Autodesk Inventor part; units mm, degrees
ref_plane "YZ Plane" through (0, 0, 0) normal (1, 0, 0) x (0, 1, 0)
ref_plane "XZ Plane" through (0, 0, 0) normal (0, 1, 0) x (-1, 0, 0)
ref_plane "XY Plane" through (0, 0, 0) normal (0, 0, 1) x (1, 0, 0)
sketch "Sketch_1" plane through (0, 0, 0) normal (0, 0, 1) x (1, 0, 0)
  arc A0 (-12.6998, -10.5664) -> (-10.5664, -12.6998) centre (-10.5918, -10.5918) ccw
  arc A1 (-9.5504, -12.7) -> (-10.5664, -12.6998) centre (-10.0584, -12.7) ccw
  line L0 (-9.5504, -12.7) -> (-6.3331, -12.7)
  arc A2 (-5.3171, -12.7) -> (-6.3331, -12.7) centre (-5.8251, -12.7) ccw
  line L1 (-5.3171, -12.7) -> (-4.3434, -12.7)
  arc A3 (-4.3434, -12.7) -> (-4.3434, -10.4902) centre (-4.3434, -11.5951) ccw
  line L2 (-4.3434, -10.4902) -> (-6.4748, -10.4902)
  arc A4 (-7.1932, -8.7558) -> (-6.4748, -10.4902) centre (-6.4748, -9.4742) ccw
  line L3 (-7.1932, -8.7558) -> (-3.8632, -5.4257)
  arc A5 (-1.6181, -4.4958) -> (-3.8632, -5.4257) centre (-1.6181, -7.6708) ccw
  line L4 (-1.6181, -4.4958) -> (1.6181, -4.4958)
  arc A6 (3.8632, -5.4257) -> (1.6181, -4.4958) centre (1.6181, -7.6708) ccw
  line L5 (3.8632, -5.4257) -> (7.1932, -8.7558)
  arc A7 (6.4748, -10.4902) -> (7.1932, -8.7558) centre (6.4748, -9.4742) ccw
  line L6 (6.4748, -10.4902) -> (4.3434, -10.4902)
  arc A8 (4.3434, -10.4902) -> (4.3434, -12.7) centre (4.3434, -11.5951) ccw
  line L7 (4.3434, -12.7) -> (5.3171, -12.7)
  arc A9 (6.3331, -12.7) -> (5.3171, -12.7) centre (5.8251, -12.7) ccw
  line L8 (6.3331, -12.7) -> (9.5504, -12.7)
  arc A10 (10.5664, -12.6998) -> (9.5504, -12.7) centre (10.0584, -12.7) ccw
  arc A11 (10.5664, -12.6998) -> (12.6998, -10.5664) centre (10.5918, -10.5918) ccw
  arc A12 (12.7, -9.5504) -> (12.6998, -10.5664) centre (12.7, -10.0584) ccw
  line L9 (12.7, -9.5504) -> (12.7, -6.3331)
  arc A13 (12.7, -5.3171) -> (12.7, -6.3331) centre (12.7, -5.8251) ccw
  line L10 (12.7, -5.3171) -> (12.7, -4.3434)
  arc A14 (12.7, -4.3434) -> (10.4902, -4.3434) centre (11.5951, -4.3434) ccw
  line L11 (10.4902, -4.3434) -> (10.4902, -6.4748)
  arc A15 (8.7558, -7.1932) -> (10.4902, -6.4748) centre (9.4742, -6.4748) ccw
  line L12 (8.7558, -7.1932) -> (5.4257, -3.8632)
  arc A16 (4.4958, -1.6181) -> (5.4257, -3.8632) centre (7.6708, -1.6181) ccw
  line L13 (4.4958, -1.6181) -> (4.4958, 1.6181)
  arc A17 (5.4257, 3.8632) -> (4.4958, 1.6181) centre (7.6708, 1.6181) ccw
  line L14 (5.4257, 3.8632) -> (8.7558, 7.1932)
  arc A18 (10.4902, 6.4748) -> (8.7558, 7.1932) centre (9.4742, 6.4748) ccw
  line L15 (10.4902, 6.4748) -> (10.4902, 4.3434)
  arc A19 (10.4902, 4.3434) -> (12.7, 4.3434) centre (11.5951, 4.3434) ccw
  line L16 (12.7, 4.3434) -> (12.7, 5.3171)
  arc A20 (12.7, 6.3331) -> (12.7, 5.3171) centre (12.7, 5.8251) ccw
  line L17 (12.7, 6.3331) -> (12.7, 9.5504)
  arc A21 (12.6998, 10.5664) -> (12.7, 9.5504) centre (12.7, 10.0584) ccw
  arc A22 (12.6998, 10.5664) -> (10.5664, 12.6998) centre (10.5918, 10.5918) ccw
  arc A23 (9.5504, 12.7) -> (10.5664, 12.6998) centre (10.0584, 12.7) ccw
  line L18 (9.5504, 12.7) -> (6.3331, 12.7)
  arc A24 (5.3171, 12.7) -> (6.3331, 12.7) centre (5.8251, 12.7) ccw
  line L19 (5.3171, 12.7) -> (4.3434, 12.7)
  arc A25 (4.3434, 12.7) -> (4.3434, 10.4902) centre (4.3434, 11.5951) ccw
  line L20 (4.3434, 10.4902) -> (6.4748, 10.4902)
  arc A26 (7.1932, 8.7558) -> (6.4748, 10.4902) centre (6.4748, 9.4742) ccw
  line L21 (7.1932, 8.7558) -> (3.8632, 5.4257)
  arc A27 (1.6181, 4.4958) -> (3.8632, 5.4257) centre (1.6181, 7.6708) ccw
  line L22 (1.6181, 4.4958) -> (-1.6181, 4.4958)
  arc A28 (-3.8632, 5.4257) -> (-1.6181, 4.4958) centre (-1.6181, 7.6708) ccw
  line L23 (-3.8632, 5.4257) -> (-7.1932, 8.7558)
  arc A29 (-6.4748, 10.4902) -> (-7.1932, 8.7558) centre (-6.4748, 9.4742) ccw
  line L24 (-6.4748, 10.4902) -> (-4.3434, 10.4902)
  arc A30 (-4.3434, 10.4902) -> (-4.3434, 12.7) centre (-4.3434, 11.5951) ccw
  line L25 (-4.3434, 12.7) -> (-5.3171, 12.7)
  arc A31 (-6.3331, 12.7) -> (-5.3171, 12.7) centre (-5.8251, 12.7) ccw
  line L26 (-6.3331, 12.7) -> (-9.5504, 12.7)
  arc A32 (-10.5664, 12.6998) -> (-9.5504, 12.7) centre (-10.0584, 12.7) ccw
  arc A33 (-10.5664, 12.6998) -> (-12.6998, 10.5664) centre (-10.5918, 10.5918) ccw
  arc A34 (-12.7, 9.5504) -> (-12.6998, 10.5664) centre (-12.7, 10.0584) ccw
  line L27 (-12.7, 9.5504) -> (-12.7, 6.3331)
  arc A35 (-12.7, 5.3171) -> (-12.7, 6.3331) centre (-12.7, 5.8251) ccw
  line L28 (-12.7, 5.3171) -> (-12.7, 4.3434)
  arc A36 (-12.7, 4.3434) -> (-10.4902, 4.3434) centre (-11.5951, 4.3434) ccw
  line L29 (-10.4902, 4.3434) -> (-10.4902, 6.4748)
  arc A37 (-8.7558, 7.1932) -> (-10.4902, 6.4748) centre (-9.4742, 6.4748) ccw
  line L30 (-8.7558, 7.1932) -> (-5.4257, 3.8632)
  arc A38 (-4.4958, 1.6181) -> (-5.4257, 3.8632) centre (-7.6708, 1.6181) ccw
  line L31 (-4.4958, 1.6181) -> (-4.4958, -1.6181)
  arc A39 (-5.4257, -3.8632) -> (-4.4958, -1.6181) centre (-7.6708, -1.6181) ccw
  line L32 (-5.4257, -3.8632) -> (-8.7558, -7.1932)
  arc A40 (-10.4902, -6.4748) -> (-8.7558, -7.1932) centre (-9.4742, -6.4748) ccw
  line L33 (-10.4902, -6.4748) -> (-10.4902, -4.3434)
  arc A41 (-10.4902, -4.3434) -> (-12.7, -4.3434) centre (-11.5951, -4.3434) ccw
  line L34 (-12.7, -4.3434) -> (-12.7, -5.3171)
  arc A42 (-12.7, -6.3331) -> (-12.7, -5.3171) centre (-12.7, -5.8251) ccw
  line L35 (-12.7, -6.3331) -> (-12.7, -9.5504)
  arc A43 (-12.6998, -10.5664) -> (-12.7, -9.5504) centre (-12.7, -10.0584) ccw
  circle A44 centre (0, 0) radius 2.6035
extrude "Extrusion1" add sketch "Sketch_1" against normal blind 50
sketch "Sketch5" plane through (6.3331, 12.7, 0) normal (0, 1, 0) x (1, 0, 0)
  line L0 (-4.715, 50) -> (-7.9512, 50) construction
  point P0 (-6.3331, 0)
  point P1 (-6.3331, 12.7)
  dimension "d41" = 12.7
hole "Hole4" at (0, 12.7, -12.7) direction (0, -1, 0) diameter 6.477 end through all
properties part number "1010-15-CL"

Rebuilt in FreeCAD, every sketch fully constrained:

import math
import FreeCAD as App
import Part
import Sketcher

V = App.Vector
Q = App.Units.Quantity

doc = App.newDocument("Part")
params = doc.addObject("Spreadsheet::Sheet", "Params")
for row, (alias, value) in enumerate([
    ("sketch1_radius", "0.02 in"),
    ("sketch1_radius2", "0.04 in"),
    ("sketch1_diameter", "0.205 in"),
    ("sketch1_radius3", "0.083 in"),
    ("sketch1_radius4", "0.125 in"),
    ("pad1_length", "1.9685039 in"),
    ("sketch2_diameter", "0.255 in"),
    ("hole_diameter", "0.255 in"),
], start=1):
    params.set(f"A{row}", alias)
    params.set(f"B{row}", "=" + value)
    params.setAlias(f"B{row}", alias)

body = doc.addObject("PartDesign::Body", "Body")

# Sketch on XY plane
sketch1 = body.newObject("Sketcher::SketchObject", "Sketch")
sketch1.AttachmentSupport = (doc.getObject("XY_Plane"), [""])
sketch1.MapMode = "FlatFace"
sketch1.addGeometry(Part.ArcOfCircle(Part.Circle(V(-12.7, -10.1, 0), V(0, 0, 1), 0.5), math.radians(-90), math.radians(90)), False)
sketch1.addGeometry(Part.ArcOfCircle(Part.Circle(V(-10.6, -10.6, 0), V(0, 0, 1), 2.1), math.radians(179), math.radians(271)), False)
sketch1.addGeometry(Part.ArcOfCircle(Part.Circle(V(-10.1, -12.7, 0), V(0, 0, 1), 0.5), math.radians(0), math.radians(180)), False)
sketch1.addGeometry(Part.LineSegment(V(-9.6, -12.7, 0), V(-6.3, -12.7, 0)), False)
sketch1.addGeometry(Part.ArcOfCircle(Part.Circle(V(-5.8, -12.7, 0), V(0, 0, 1), 0.5), math.radians(0), math.radians(180)), False)
sketch1.addGeometry(Part.LineSegment(V(-5.3, -12.7, 0), V(-4.3, -12.7, 0)), False)
sketch1.addGeometry(Part.ArcOfCircle(Part.Circle(V(-4.3, -11.6, 0), V(0, 0, 1), 1.1), math.radians(-90), math.radians(90)), False)
sketch1.addGeometry(Part.LineSegment(V(-4.3, -10.5, 0), V(-6.5, -10.5, 0)), False)
sketch1.addGeometry(Part.ArcOfCircle(Part.Circle(V(-6.5, -9.5, 0), V(0, 0, 1), 1), math.radians(135), math.radians(270)), False)
sketch1.addGeometry(Part.LineSegment(V(-7.2, -8.8, 0), V(-3.9, -5.4, 0)), False)
sketch1.addGeometry(Part.ArcOfCircle(Part.Circle(V(-1.6, -7.7, 0), V(0, 0, 1), 3.2), math.radians(90), math.radians(135)), False)
sketch1.addGeometry(Part.LineSegment(V(-1.6, -4.5, 0), V(1.6, -4.5, 0)), False)
sketch1.addGeometry(Part.ArcOfCircle(Part.Circle(V(1.6, -7.7, 0), V(0, 0, 1), 3.2), math.radians(45), math.radians(90)), False)
sketch1.addGeometry(Part.LineSegment(V(3.9, -5.4, 0), V(7.2, -8.8, 0)), False)
sketch1.addGeometry(Part.ArcOfCircle(Part.Circle(V(6.5, -9.5, 0), V(0, 0, 1), 1), math.radians(-90), math.radians(45)), False)
sketch1.addGeometry(Part.LineSegment(V(6.5, -10.5, 0), V(4.3, -10.5, 0)), False)
sketch1.addGeometry(Part.ArcOfCircle(Part.Circle(V(4.3, -11.6, 0), V(0, 0, 1), 1.1), math.radians(90), math.radians(270)), False)
sketch1.addGeometry(Part.LineSegment(V(4.3, -12.7, 0), V(5.3, -12.7, 0)), False)
sketch1.addGeometry(Part.ArcOfCircle(Part.Circle(V(5.8, -12.7, 0), V(0, 0, 1), 0.5), math.radians(0), math.radians(180)), False)
sketch1.addGeometry(Part.LineSegment(V(6.3, -12.7, 0), V(9.6, -12.7, 0)), False)
sketch1.addGeometry(Part.ArcOfCircle(Part.Circle(V(10.1, -12.7, 0), V(0, 0, 1), 0.5), math.radians(0), math.radians(180)), False)
sketch1.addGeometry(Part.ArcOfCircle(Part.Circle(V(10.6, -10.6, 0), V(0, 0, 1), 2.1), math.radians(-91), math.radians(1)), False)
sketch1.addGeometry(Part.ArcOfCircle(Part.Circle(V(12.7, -10.1, 0), V(0, 0, 1), 0.5), math.radians(90), math.radians(270)), False)
sketch1.addGeometry(Part.LineSegment(V(12.7, -9.6, 0), V(12.7, -6.3, 0)), False)
sketch1.addGeometry(Part.ArcOfCircle(Part.Circle(V(12.7, -5.8, 0), V(0, 0, 1), 0.5), math.radians(90), math.radians(270)), False)
sketch1.addGeometry(Part.LineSegment(V(12.7, -5.3, 0), V(12.7, -4.3, 0)), False)
sketch1.addGeometry(Part.ArcOfCircle(Part.Circle(V(11.6, -4.3, 0), V(0, 0, 1), 1.1), math.radians(0), math.radians(180)), False)
sketch1.addGeometry(Part.LineSegment(V(10.5, -4.3, 0), V(10.5, -6.5, 0)), False)
sketch1.addGeometry(Part.ArcOfCircle(Part.Circle(V(9.5, -6.5, 0), V(0, 0, 1), 1), math.radians(-135), math.radians(0)), False)
sketch1.addGeometry(Part.LineSegment(V(8.8, -7.2, 0), V(5.4, -3.9, 0)), False)
sketch1.addGeometry(Part.ArcOfCircle(Part.Circle(V(7.7, -1.6, 0), V(0, 0, 1), 3.2), math.radians(180), math.radians(225)), False)
sketch1.addGeometry(Part.LineSegment(V(4.5, -1.6, 0), V(4.5, 1.6, 0)), False)
sketch1.addGeometry(Part.ArcOfCircle(Part.Circle(V(7.7, 1.6, 0), V(0, 0, 1), 3.2), math.radians(135), math.radians(180)), False)
sketch1.addGeometry(Part.LineSegment(V(5.4, 3.9, 0), V(8.8, 7.2, 0)), False)
sketch1.addGeometry(Part.ArcOfCircle(Part.Circle(V(9.5, 6.5, 0), V(0, 0, 1), 1), math.radians(0), math.radians(135)), False)
sketch1.addGeometry(Part.LineSegment(V(10.5, 6.5, 0), V(10.5, 4.3, 0)), False)
sketch1.addGeometry(Part.ArcOfCircle(Part.Circle(V(11.6, 4.3, 0), V(0, 0, 1), 1.1), math.radians(180), math.radians(360)), False)
sketch1.addGeometry(Part.LineSegment(V(12.7, 4.3, 0), V(12.7, 5.3, 0)), False)
sketch1.addGeometry(Part.ArcOfCircle(Part.Circle(V(12.7, 5.8, 0), V(0, 0, 1), 0.5), math.radians(90), math.radians(270)), False)
sketch1.addGeometry(Part.LineSegment(V(12.7, 6.3, 0), V(12.7, 9.6, 0)), False)
sketch1.addGeometry(Part.ArcOfCircle(Part.Circle(V(12.7, 10.1, 0), V(0, 0, 1), 0.5), math.radians(90), math.radians(270)), False)
sketch1.addGeometry(Part.ArcOfCircle(Part.Circle(V(10.6, 10.6, 0), V(0, 0, 1), 2.1), math.radians(-1), math.radians(91)), False)
sketch1.addGeometry(Part.ArcOfCircle(Part.Circle(V(10.1, 12.7, 0), V(0, 0, 1), 0.5), math.radians(180), math.radians(360)), False)
sketch1.addGeometry(Part.LineSegment(V(9.6, 12.7, 0), V(6.3, 12.7, 0)), False)
sketch1.addGeometry(Part.ArcOfCircle(Part.Circle(V(5.8, 12.7, 0), V(0, 0, 1), 0.5), math.radians(180), math.radians(360)), False)
sketch1.addGeometry(Part.LineSegment(V(5.3, 12.7, 0), V(4.3, 12.7, 0)), False)
sketch1.addGeometry(Part.ArcOfCircle(Part.Circle(V(4.3, 11.6, 0), V(0, 0, 1), 1.1), math.radians(90), math.radians(270)), False)
sketch1.addGeometry(Part.LineSegment(V(4.3, 10.5, 0), V(6.5, 10.5, 0)), False)
sketch1.addGeometry(Part.ArcOfCircle(Part.Circle(V(6.5, 9.5, 0), V(0, 0, 1), 1), math.radians(-45), math.radians(90)), False)
sketch1.addGeometry(Part.LineSegment(V(7.2, 8.8, 0), V(3.9, 5.4, 0)), False)
sketch1.addGeometry(Part.ArcOfCircle(Part.Circle(V(1.6, 7.7, 0), V(0, 0, 1), 3.2), math.radians(-90), math.radians(-45)), False)
sketch1.addGeometry(Part.LineSegment(V(1.6, 4.5, 0), V(-1.6, 4.5, 0)), False)
sketch1.addGeometry(Part.ArcOfCircle(Part.Circle(V(-1.6, 7.7, 0), V(0, 0, 1), 3.2), math.radians(-135), math.radians(-90)), False)
sketch1.addGeometry(Part.LineSegment(V(-3.9, 5.4, 0), V(-7.2, 8.8, 0)), False)
sketch1.addGeometry(Part.ArcOfCircle(Part.Circle(V(-6.5, 9.5, 0), V(0, 0, 1), 1), math.radians(90), math.radians(225)), False)
sketch1.addGeometry(Part.LineSegment(V(-6.5, 10.5, 0), V(-4.3, 10.5, 0)), False)
sketch1.addGeometry(Part.ArcOfCircle(Part.Circle(V(-4.3, 11.6, 0), V(0, 0, 1), 1.1), math.radians(-90), math.radians(90)), False)
sketch1.addGeometry(Part.LineSegment(V(-4.3, 12.7, 0), V(-5.3, 12.7, 0)), False)
sketch1.addGeometry(Part.ArcOfCircle(Part.Circle(V(-5.8, 12.7, 0), V(0, 0, 1), 0.5), math.radians(180), math.radians(360)), False)
sketch1.addGeometry(Part.LineSegment(V(-6.3, 12.7, 0), V(-9.6, 12.7, 0)), False)
sketch1.addGeometry(Part.ArcOfCircle(Part.Circle(V(-10.1, 12.7, 0), V(0, 0, 1), 0.5), math.radians(-180), math.radians(0)), False)
sketch1.addGeometry(Part.ArcOfCircle(Part.Circle(V(-10.6, 10.6, 0), V(0, 0, 1), 2.1), math.radians(89), math.radians(181)), False)
sketch1.addGeometry(Part.ArcOfCircle(Part.Circle(V(-12.7, 10.1, 0), V(0, 0, 1), 0.5), math.radians(-90), math.radians(90)), False)
sketch1.addGeometry(Part.LineSegment(V(-12.7, 9.6, 0), V(-12.7, 6.3, 0)), False)
sketch1.addGeometry(Part.ArcOfCircle(Part.Circle(V(-12.7, 5.8, 0), V(0, 0, 1), 0.5), math.radians(-90), math.radians(90)), False)
sketch1.addGeometry(Part.LineSegment(V(-12.7, 5.3, 0), V(-12.7, 4.3, 0)), False)
sketch1.addGeometry(Part.ArcOfCircle(Part.Circle(V(-11.6, 4.3, 0), V(0, 0, 1), 1.1), math.radians(180), math.radians(360)), False)
sketch1.addGeometry(Part.LineSegment(V(-10.5, 4.3, 0), V(-10.5, 6.5, 0)), False)
sketch1.addGeometry(Part.ArcOfCircle(Part.Circle(V(-9.5, 6.5, 0), V(0, 0, 1), 1), math.radians(45), math.radians(180)), False)
sketch1.addGeometry(Part.LineSegment(V(-8.8, 7.2, 0), V(-5.4, 3.9, 0)), False)
sketch1.addGeometry(Part.ArcOfCircle(Part.Circle(V(-7.7, 1.6, 0), V(0, 0, 1), 3.2), math.radians(0), math.radians(45)), False)
sketch1.addGeometry(Part.LineSegment(V(-4.5, 1.6, 0), V(-4.5, -1.6, 0)), False)
sketch1.addGeometry(Part.ArcOfCircle(Part.Circle(V(-7.7, -1.6, 0), V(0, 0, 1), 3.2), math.radians(-45), math.radians(0)), False)
sketch1.addGeometry(Part.LineSegment(V(-5.4, -3.9, 0), V(-8.8, -7.2, 0)), False)
sketch1.addGeometry(Part.ArcOfCircle(Part.Circle(V(-9.5, -6.5, 0), V(0, 0, 1), 1), math.radians(180), math.radians(315)), False)
sketch1.addGeometry(Part.LineSegment(V(-10.5, -6.5, 0), V(-10.5, -4.3, 0)), False)
sketch1.addGeometry(Part.ArcOfCircle(Part.Circle(V(-11.6, -4.3, 0), V(0, 0, 1), 1.1), math.radians(0), math.radians(180)), False)
sketch1.addGeometry(Part.LineSegment(V(-12.7, -4.3, 0), V(-12.7, -5.3, 0)), False)
sketch1.addGeometry(Part.ArcOfCircle(Part.Circle(V(-12.7, -5.8, 0), V(0, 0, 1), 0.5), math.radians(-90), math.radians(90)), False)
sketch1.addGeometry(Part.LineSegment(V(-12.7, -6.3, 0), V(-12.7, -9.6, 0)), False)
sketch1.addGeometry(Part.Circle(V(0, 0, 0), V(0, 0, 1), 2.6), False)
sketch1.addConstraint(Sketcher.Constraint("Coincident", 0, 1, 1, 1))
sketch1.addConstraint(Sketcher.Constraint("Coincident", 1, 2, 2, 2))
sketch1.addConstraint(Sketcher.Constraint("Coincident", 2, 1, 3, 1))
sketch1.addConstraint(Sketcher.Constraint("Coincident", 3, 2, 4, 2))
sketch1.addConstraint(Sketcher.Constraint("Coincident", 4, 1, 5, 1))
sketch1.addConstraint(Sketcher.Constraint("Tangent", 5, 2, 6, 1))
sketch1.addConstraint(Sketcher.Constraint("Tangent", 6, 2, 7, 1))
sketch1.addConstraint(Sketcher.Constraint("Tangent", 7, 2, 8, 2))
sketch1.addConstraint(Sketcher.Constraint("Tangent", 8, 1, 9, 1))
sketch1.addConstraint(Sketcher.Constraint("Tangent", 9, 2, 10, 2))
sketch1.addConstraint(Sketcher.Constraint("Tangent", 10, 1, 11, 1))
sketch1.addConstraint(Sketcher.Constraint("Tangent", 11, 2, 12, 2))
sketch1.addConstraint(Sketcher.Constraint("Tangent", 12, 1, 13, 1))
sketch1.addConstraint(Sketcher.Constraint("Tangent", 13, 2, 14, 2))
sketch1.addConstraint(Sketcher.Constraint("Tangent", 14, 1, 15, 1))
sketch1.addConstraint(Sketcher.Constraint("Tangent", 15, 2, 16, 1))
sketch1.addConstraint(Sketcher.Constraint("Tangent", 16, 2, 17, 1))
sketch1.addConstraint(Sketcher.Constraint("Coincident", 17, 2, 18, 2))
sketch1.addConstraint(Sketcher.Constraint("Coincident", 18, 1, 19, 1))
sketch1.addConstraint(Sketcher.Constraint("Coincident", 19, 2, 20, 2))
sketch1.addConstraint(Sketcher.Constraint("Coincident", 20, 1, 21, 1))
sketch1.addConstraint(Sketcher.Constraint("Coincident", 21, 2, 22, 2))
sketch1.addConstraint(Sketcher.Constraint("Coincident", 22, 1, 23, 1))
sketch1.addConstraint(Sketcher.Constraint("Coincident", 23, 2, 24, 2))
sketch1.addConstraint(Sketcher.Constraint("Coincident", 24, 1, 25, 1))
sketch1.addConstraint(Sketcher.Constraint("Tangent", 25, 2, 26, 1))
sketch1.addConstraint(Sketcher.Constraint("Tangent", 26, 2, 27, 1))
sketch1.addConstraint(Sketcher.Constraint("Tangent", 27, 2, 28, 2))
sketch1.addConstraint(Sketcher.Constraint("Tangent", 28, 1, 29, 1))
sketch1.addConstraint(Sketcher.Constraint("Tangent", 29, 2, 30, 2))
sketch1.addConstraint(Sketcher.Constraint("Tangent", 30, 1, 31, 1))
sketch1.addConstraint(Sketcher.Constraint("Tangent", 31, 2, 32, 2))
sketch1.addConstraint(Sketcher.Constraint("Tangent", 32, 1, 33, 1))
sketch1.addConstraint(Sketcher.Constraint("Tangent", 33, 2, 34, 2))
sketch1.addConstraint(Sketcher.Constraint("Tangent", 34, 1, 35, 1))
sketch1.addConstraint(Sketcher.Constraint("Tangent", 35, 2, 36, 1))
sketch1.addConstraint(Sketcher.Constraint("Tangent", 36, 2, 37, 1))
sketch1.addConstraint(Sketcher.Constraint("Coincident", 37, 2, 38, 2))
sketch1.addConstraint(Sketcher.Constraint("Coincident", 38, 1, 39, 1))
sketch1.addConstraint(Sketcher.Constraint("Coincident", 39, 2, 40, 2))
sketch1.addConstraint(Sketcher.Constraint("Coincident", 40, 1, 41, 1))
sketch1.addConstraint(Sketcher.Constraint("Coincident", 41, 2, 42, 2))
sketch1.addConstraint(Sketcher.Constraint("Coincident", 42, 1, 43, 1))
sketch1.addConstraint(Sketcher.Constraint("Coincident", 43, 2, 44, 2))
sketch1.addConstraint(Sketcher.Constraint("Coincident", 44, 1, 45, 1))
sketch1.addConstraint(Sketcher.Constraint("Tangent", 45, 2, 46, 1))
sketch1.addConstraint(Sketcher.Constraint("Tangent", 46, 2, 47, 1))
sketch1.addConstraint(Sketcher.Constraint("Tangent", 47, 2, 48, 2))
sketch1.addConstraint(Sketcher.Constraint("Tangent", 48, 1, 49, 1))
sketch1.addConstraint(Sketcher.Constraint("Tangent", 49, 2, 50, 2))
sketch1.addConstraint(Sketcher.Constraint("Tangent", 50, 1, 51, 1))
sketch1.addConstraint(Sketcher.Constraint("Tangent", 51, 2, 52, 2))
sketch1.addConstraint(Sketcher.Constraint("Tangent", 52, 1, 53, 1))
sketch1.addConstraint(Sketcher.Constraint("Tangent", 53, 2, 54, 2))
sketch1.addConstraint(Sketcher.Constraint("Tangent", 54, 1, 55, 1))
sketch1.addConstraint(Sketcher.Constraint("Tangent", 55, 2, 56, 1))
sketch1.addConstraint(Sketcher.Constraint("Tangent", 56, 2, 57, 1))
sketch1.addConstraint(Sketcher.Constraint("Coincident", 57, 2, 58, 2))
sketch1.addConstraint(Sketcher.Constraint("Coincident", 58, 1, 59, 1))
sketch1.addConstraint(Sketcher.Constraint("Coincident", 59, 2, 60, 2))
sketch1.addConstraint(Sketcher.Constraint("Coincident", 60, 1, 61, 1))
sketch1.addConstraint(Sketcher.Constraint("Coincident", 61, 2, 62, 2))
sketch1.addConstraint(Sketcher.Constraint("Coincident", 62, 1, 63, 1))
sketch1.addConstraint(Sketcher.Constraint("Coincident", 63, 2, 64, 2))
sketch1.addConstraint(Sketcher.Constraint("Coincident", 64, 1, 65, 1))
sketch1.addConstraint(Sketcher.Constraint("Tangent", 65, 2, 66, 1))
sketch1.addConstraint(Sketcher.Constraint("Tangent", 66, 2, 67, 1))
sketch1.addConstraint(Sketcher.Constraint("Tangent", 67, 2, 68, 2))
sketch1.addConstraint(Sketcher.Constraint("Tangent", 68, 1, 69, 1))
sketch1.addConstraint(Sketcher.Constraint("Tangent", 69, 2, 70, 2))
sketch1.addConstraint(Sketcher.Constraint("Tangent", 70, 1, 71, 1))
sketch1.addConstraint(Sketcher.Constraint("Tangent", 71, 2, 72, 2))
sketch1.addConstraint(Sketcher.Constraint("Tangent", 72, 1, 73, 1))
sketch1.addConstraint(Sketcher.Constraint("Tangent", 73, 2, 74, 2))
sketch1.addConstraint(Sketcher.Constraint("Tangent", 74, 1, 75, 1))
sketch1.addConstraint(Sketcher.Constraint("Tangent", 75, 2, 76, 1))
sketch1.addConstraint(Sketcher.Constraint("Tangent", 76, 2, 77, 1))
sketch1.addConstraint(Sketcher.Constraint("Coincident", 77, 2, 78, 2))
sketch1.addConstraint(Sketcher.Constraint("Coincident", 78, 1, 79, 1))
sketch1.addConstraint(Sketcher.Constraint("Coincident", 79, 2, 0, 2))
sketch1.addConstraint(Sketcher.Constraint("Horizontal", 3))
sketch1.addConstraint(Sketcher.Constraint("Horizontal", 5))
sketch1.addConstraint(Sketcher.Constraint("Horizontal", 7))
sketch1.addConstraint(Sketcher.Constraint("Horizontal", 11))
sketch1.addConstraint(Sketcher.Constraint("Horizontal", 15))
sketch1.addConstraint(Sketcher.Constraint("Horizontal", 17))
sketch1.addConstraint(Sketcher.Constraint("Horizontal", 19))
sketch1.addConstraint(Sketcher.Constraint("Vertical", 23))
sketch1.addConstraint(Sketcher.Constraint("Vertical", 25))
sketch1.addConstraint(Sketcher.Constraint("Vertical", 27))
sketch1.addConstraint(Sketcher.Constraint("Vertical", 31))
sketch1.addConstraint(Sketcher.Constraint("Vertical", 35))
sketch1.addConstraint(Sketcher.Constraint("Vertical", 37))
sketch1.addConstraint(Sketcher.Constraint("Vertical", 39))
sketch1.addConstraint(Sketcher.Constraint("Horizontal", 43))
sketch1.addConstraint(Sketcher.Constraint("Horizontal", 45))
sketch1.addConstraint(Sketcher.Constraint("Horizontal", 47))
sketch1.addConstraint(Sketcher.Constraint("Horizontal", 51))
sketch1.addConstraint(Sketcher.Constraint("Horizontal", 55))
sketch1.addConstraint(Sketcher.Constraint("Horizontal", 57))
sketch1.addConstraint(Sketcher.Constraint("Horizontal", 59))
sketch1.addConstraint(Sketcher.Constraint("Vertical", 63))
sketch1.addConstraint(Sketcher.Constraint("Vertical", 65))
sketch1.addConstraint(Sketcher.Constraint("Vertical", 67))
sketch1.addConstraint(Sketcher.Constraint("Vertical", 71))
sketch1.addConstraint(Sketcher.Constraint("Vertical", 75))
sketch1.addConstraint(Sketcher.Constraint("Vertical", 77))
sketch1.addConstraint(Sketcher.Constraint("Vertical", 79))
sketch1.addConstraint(Sketcher.Constraint("Coincident", 80, 3, -1, 1))
sketch1.addConstraint(Sketcher.Constraint("Equal", 0, 2))
sketch1.addConstraint(Sketcher.Constraint("Equal", 2, 4))
sketch1.addConstraint(Sketcher.Constraint("Equal", 10, 12))
sketch1.addConstraint(Sketcher.Constraint("Equal", 8, 14))
sketch1.addConstraint(Sketcher.Constraint("Equal", 6, 16))
sketch1.addConstraint(Sketcher.Constraint("Equal", 4, 18))
sketch1.addConstraint(Sketcher.Constraint("Equal", 18, 20))
sketch1.addConstraint(Sketcher.Constraint("Equal", 1, 21))
sketch1.addConstraint(Sketcher.Constraint("Equal", 20, 22))
sketch1.addConstraint(Sketcher.Constraint("Equal", 22, 24))
sketch1.addConstraint(Sketcher.Constraint("Equal", 16, 26))
sketch1.addConstraint(Sketcher.Constraint("Equal", 14, 28))
sketch1.addConstraint(Sketcher.Constraint("Equal", 12, 30))
sketch1.addConstraint(Sketcher.Constraint("Equal", 30, 32))
sketch1.addConstraint(Sketcher.Constraint("Equal", 28, 34))
sketch1.addConstraint(Sketcher.Constraint("Equal", 26, 36))
sketch1.addConstraint(Sketcher.Constraint("Equal", 24, 38))
sketch1.addConstraint(Sketcher.Constraint("Equal", 38, 40))
sketch1.addConstraint(Sketcher.Constraint("Equal", 21, 41))
sketch1.addConstraint(Sketcher.Constraint("Equal", 40, 42))
sketch1.addConstraint(Sketcher.Constraint("Equal", 42, 44))
sketch1.addConstraint(Sketcher.Constraint("Equal", 36, 46))
sketch1.addConstraint(Sketcher.Constraint("Equal", 34, 48))
sketch1.addConstraint(Sketcher.Constraint("Equal", 32, 50))
sketch1.addConstraint(Sketcher.Constraint("Equal", 50, 52))
sketch1.addConstraint(Sketcher.Constraint("Equal", 48, 54))
sketch1.addConstraint(Sketcher.Constraint("Equal", 46, 56))
sketch1.addConstraint(Sketcher.Constraint("Equal", 44, 58))
sketch1.addConstraint(Sketcher.Constraint("Equal", 58, 60))
sketch1.addConstraint(Sketcher.Constraint("Equal", 41, 61))
sketch1.addConstraint(Sketcher.Constraint("Equal", 60, 62))
sketch1.addConstraint(Sketcher.Constraint("Equal", 62, 64))
sketch1.addConstraint(Sketcher.Constraint("Equal", 56, 66))
sketch1.addConstraint(Sketcher.Constraint("Equal", 54, 68))
sketch1.addConstraint(Sketcher.Constraint("Equal", 52, 70))
sketch1.addConstraint(Sketcher.Constraint("Equal", 70, 72))
sketch1.addConstraint(Sketcher.Constraint("Equal", 68, 74))
sketch1.addConstraint(Sketcher.Constraint("Equal", 66, 76))
sketch1.addConstraint(Sketcher.Constraint("Equal", 64, 78))
sketch1.addConstraint(Sketcher.Constraint("Symmetric", 0, 3, 40, 3, -1, 1))
sketch1.addConstraint(Sketcher.Constraint("Symmetric", 1, 3, 41, 3, -1, 1))
sketch1.addConstraint(Sketcher.Constraint("Symmetric", 2, 3, 42, 3, -1, 1))
sketch1.addConstraint(Sketcher.Constraint("Symmetric", 4, 3, 44, 3, -1, 1))
sketch1.addConstraint(Sketcher.Constraint("Symmetric", 6, 3, 46, 3, -1, 1))
sketch1.addConstraint(Sketcher.Constraint("Symmetric", 10, 3, 50, 3, -1, 1))
sketch1.addConstraint(Sketcher.Constraint("Symmetric", 14, 3, 54, 3, -1, 1))
sketch1.addConstraint(Sketcher.Constraint("Symmetric", 18, 3, 58, 3, -1, 1))
sketch1.addConstraint(Sketcher.Constraint("Symmetric", 20, 3, 60, 3, -1, 1))
sketch1.addConstraint(Sketcher.Constraint("Symmetric", 21, 3, 61, 3, -1, 1))
sketch1.addConstraint(Sketcher.Constraint("Symmetric", 22, 3, 62, 3, -1, 1))
sketch1.addConstraint(Sketcher.Constraint("Symmetric", 24, 3, 64, 3, -1, 1))
sketch1.addConstraint(Sketcher.Constraint("Symmetric", 26, 3, 66, 3, -1, 1))
sketch1.addConstraint(Sketcher.Constraint("Symmetric", 30, 3, 70, 3, -1, 1))
sketch1.addConstraint(Sketcher.Constraint("Symmetric", 34, 3, 74, 3, -1, 1))
sketch1.addConstraint(Sketcher.Constraint("Symmetric", 38, 3, 78, 3, -1, 1))
sketch1.addConstraint(Sketcher.Constraint("Symmetric", 8, 3, 14, 3, -2))
sketch1.addConstraint(Sketcher.Constraint("Symmetric", 4, 3, 18, 3, -2))
sketch1.addConstraint(Sketcher.Constraint("Symmetric", 2, 3, 20, 3, -2))
sketch1.addConstraint(Sketcher.Constraint("Symmetric", 1, 3, 21, 3, -2))
sketch1.addConstraint(Sketcher.Constraint("Symmetric", 0, 3, 22, 3, -2))
sketch1.addConstraint(Sketcher.Constraint("Symmetric", 38, 3, 64, 3, -2))
sketch1.addConstraint(Sketcher.Constraint("Symmetric", 36, 3, 66, 3, -2))
sketch1.addConstraint(Sketcher.Constraint("Symmetric", 49, 2, 52, 1, -2))
sketch1.addConstraint(Sketcher.Constraint("Symmetric", 33, 2, 68, 1, -2))
sketch1.addConstraint(Sketcher.Constraint("Symmetric", 29, 2, 72, 1, -2))
sketch1.addConstraint(Sketcher.Constraint("Perpendicular", 9, 13))
sketch1.addConstraint(Sketcher.Constraint("Parallel", 13, 29))
sketch1.addConstraint(Sketcher.Constraint("Perpendicular", 29, 33))
sketch1.addConstraint(Sketcher.Constraint("Horizontal", 2, 3, 4, 3))
sketch1.addConstraint(Sketcher.Constraint("Horizontal", 26, 3, 76, 3))
sketch1.addConstraint(Sketcher.Constraint("Horizontal", 20, 3, 1, 2))
sketch1.addConstraint(Sketcher.Constraint("Horizontal", 1, 2, 2, 1))
sketch1.addConstraint(Sketcher.Constraint("Horizontal", 3, 2, 4, 1))
sketch1.addConstraint(Sketcher.Constraint("Horizontal", 17, 2, 18, 1))
sketch1.addConstraint(Sketcher.Constraint("Horizontal", 41, 2, 42, 1))
sketch1.addConstraint(Sketcher.Constraint("Horizontal", 57, 2, 58, 1))
sketch1.addConstraint(Sketcher.Constraint("Vertical", 22, 3, 24, 3))
sketch1.addConstraint(Sketcher.Constraint("Vertical", 16, 3, 46, 3))
sketch1.addConstraint(Sketcher.Constraint("Vertical", 6, 3, 56, 3))
sketch1.addConstraint(Sketcher.Constraint("Vertical", 78, 3, 0, 1))
sketch1.addConstraint(Sketcher.Constraint("Vertical", 21, 2, 22, 1))
sketch1.addConstraint(Sketcher.Constraint("Vertical", 23, 2, 24, 1))
sketch1.addConstraint(Sketcher.Constraint("Vertical", 37, 2, 38, 1))
sketch1.addConstraint(Sketcher.Constraint("Vertical", 61, 2, 62, 1))
sketch1.addConstraint(Sketcher.Constraint("Vertical", 77, 2, 78, 1))
sketch1.addConstraint(Sketcher.Constraint("Equal", 59, 23))
sketch1.addConstraint(Sketcher.Constraint("Equal", 57, 25))
sketch1.addConstraint(Sketcher.Constraint("Equal", 55, 27))
sketch1.addConstraint(Sketcher.Constraint("Equal", 51, 31))
sketch1.addConstraint(Sketcher.Constraint("Equal", 13, 29))
sketch1.addConstraint(Sketcher.Constraint("Radius", 0, Q("0.02 in")))
sketch1.addConstraint(Sketcher.Constraint("Radius", 8, Q("0.04 in")))
sketch1.addConstraint(Sketcher.Constraint("Diameter", 80, Q("0.205 in")))
sketch1.addConstraint(Sketcher.Constraint("Radius", 1, Q("0.083 in")))
sketch1.addConstraint(Sketcher.Constraint("Radius", 10, Q("0.125 in")))
sketch1.addConstraint(Sketcher.Constraint("DistanceX", 0, 3, -1, 1, Q("0.5 in")))
sketch1.addConstraint(Sketcher.Constraint("DistanceY", 2, 3, -1, 1, Q("0.5 in")))
sketch1.addConstraint(Sketcher.Constraint("Radius", 6, Q("0.0435 in")))
sketch1.addConstraint(Sketcher.Constraint("DistanceX", 11, 1, 11, 2, Q("0.1274 in")))
sketch1.addConstraint(Sketcher.Constraint("DistanceY", 0, 3, -1, 1, Q("0.396 in")))
sketch1.addConstraint(Sketcher.Constraint("DistanceX", 6, 3, -1, 1, Q("0.171 in")))
sketch1.addConstraint(Sketcher.Constraint("DistanceY", 10, 3, -1, 1, Q("0.302 in")))
sketch1.addConstraint(Sketcher.Constraint("DistanceX", 3, 1, 3, 2, 3.2173))
sketch1.setExpression("Constraints[199]", "Params.sketch1_radius")
sketch1.setExpression("Constraints[200]", "Params.sketch1_radius2")
sketch1.setExpression("Constraints[201]", "Params.sketch1_diameter")
sketch1.setExpression("Constraints[202]", "Params.sketch1_radius3")
sketch1.setExpression("Constraints[203]", "Params.sketch1_radius4")
pad1 = body.newObject("PartDesign::Pad", "Pad")
pad1.Profile = sketch1
pad1.setExpression("Length", "Params.pad1_length")
pad1.Reversed = True

# Sketch on XZ plane
sketch2 = body.newObject("Sketcher::SketchObject", "Sketch001")
sketch2.AttachmentSupport = (doc.getObject("XZ_Plane"), [""])
sketch2.MapMode = "FlatFace"
sketch2.AttachmentOffset = App.Placement(V(0, 0, -0.5 * 25.4), App.Rotation())
sketch2.addGeometry(Part.Circle(V(0, -12.7, 0), V(0, 0, 1), 3.2), False)
sketch2.addConstraint(Sketcher.Constraint("PointOnObject", 0, 3, -2))
sketch2.addConstraint(Sketcher.Constraint("Diameter", 0, Q("0.255 in")))
sketch2.addConstraint(Sketcher.Constraint("DistanceY", 0, 3, -1, 1, Q("0.5 in")))
sketch2.setExpression("Constraints[1]", "Params.sketch2_diameter")
doc.recompute()
hole = body.newObject("PartDesign::Hole", "Hole")
hole.Profile = sketch2
hole.ThreadType = "None"
hole.setExpression("Diameter", "Params.hole_diameter")
hole.DepthType = "ThroughAll"
hole.Reversed = True

doc.recompute()
